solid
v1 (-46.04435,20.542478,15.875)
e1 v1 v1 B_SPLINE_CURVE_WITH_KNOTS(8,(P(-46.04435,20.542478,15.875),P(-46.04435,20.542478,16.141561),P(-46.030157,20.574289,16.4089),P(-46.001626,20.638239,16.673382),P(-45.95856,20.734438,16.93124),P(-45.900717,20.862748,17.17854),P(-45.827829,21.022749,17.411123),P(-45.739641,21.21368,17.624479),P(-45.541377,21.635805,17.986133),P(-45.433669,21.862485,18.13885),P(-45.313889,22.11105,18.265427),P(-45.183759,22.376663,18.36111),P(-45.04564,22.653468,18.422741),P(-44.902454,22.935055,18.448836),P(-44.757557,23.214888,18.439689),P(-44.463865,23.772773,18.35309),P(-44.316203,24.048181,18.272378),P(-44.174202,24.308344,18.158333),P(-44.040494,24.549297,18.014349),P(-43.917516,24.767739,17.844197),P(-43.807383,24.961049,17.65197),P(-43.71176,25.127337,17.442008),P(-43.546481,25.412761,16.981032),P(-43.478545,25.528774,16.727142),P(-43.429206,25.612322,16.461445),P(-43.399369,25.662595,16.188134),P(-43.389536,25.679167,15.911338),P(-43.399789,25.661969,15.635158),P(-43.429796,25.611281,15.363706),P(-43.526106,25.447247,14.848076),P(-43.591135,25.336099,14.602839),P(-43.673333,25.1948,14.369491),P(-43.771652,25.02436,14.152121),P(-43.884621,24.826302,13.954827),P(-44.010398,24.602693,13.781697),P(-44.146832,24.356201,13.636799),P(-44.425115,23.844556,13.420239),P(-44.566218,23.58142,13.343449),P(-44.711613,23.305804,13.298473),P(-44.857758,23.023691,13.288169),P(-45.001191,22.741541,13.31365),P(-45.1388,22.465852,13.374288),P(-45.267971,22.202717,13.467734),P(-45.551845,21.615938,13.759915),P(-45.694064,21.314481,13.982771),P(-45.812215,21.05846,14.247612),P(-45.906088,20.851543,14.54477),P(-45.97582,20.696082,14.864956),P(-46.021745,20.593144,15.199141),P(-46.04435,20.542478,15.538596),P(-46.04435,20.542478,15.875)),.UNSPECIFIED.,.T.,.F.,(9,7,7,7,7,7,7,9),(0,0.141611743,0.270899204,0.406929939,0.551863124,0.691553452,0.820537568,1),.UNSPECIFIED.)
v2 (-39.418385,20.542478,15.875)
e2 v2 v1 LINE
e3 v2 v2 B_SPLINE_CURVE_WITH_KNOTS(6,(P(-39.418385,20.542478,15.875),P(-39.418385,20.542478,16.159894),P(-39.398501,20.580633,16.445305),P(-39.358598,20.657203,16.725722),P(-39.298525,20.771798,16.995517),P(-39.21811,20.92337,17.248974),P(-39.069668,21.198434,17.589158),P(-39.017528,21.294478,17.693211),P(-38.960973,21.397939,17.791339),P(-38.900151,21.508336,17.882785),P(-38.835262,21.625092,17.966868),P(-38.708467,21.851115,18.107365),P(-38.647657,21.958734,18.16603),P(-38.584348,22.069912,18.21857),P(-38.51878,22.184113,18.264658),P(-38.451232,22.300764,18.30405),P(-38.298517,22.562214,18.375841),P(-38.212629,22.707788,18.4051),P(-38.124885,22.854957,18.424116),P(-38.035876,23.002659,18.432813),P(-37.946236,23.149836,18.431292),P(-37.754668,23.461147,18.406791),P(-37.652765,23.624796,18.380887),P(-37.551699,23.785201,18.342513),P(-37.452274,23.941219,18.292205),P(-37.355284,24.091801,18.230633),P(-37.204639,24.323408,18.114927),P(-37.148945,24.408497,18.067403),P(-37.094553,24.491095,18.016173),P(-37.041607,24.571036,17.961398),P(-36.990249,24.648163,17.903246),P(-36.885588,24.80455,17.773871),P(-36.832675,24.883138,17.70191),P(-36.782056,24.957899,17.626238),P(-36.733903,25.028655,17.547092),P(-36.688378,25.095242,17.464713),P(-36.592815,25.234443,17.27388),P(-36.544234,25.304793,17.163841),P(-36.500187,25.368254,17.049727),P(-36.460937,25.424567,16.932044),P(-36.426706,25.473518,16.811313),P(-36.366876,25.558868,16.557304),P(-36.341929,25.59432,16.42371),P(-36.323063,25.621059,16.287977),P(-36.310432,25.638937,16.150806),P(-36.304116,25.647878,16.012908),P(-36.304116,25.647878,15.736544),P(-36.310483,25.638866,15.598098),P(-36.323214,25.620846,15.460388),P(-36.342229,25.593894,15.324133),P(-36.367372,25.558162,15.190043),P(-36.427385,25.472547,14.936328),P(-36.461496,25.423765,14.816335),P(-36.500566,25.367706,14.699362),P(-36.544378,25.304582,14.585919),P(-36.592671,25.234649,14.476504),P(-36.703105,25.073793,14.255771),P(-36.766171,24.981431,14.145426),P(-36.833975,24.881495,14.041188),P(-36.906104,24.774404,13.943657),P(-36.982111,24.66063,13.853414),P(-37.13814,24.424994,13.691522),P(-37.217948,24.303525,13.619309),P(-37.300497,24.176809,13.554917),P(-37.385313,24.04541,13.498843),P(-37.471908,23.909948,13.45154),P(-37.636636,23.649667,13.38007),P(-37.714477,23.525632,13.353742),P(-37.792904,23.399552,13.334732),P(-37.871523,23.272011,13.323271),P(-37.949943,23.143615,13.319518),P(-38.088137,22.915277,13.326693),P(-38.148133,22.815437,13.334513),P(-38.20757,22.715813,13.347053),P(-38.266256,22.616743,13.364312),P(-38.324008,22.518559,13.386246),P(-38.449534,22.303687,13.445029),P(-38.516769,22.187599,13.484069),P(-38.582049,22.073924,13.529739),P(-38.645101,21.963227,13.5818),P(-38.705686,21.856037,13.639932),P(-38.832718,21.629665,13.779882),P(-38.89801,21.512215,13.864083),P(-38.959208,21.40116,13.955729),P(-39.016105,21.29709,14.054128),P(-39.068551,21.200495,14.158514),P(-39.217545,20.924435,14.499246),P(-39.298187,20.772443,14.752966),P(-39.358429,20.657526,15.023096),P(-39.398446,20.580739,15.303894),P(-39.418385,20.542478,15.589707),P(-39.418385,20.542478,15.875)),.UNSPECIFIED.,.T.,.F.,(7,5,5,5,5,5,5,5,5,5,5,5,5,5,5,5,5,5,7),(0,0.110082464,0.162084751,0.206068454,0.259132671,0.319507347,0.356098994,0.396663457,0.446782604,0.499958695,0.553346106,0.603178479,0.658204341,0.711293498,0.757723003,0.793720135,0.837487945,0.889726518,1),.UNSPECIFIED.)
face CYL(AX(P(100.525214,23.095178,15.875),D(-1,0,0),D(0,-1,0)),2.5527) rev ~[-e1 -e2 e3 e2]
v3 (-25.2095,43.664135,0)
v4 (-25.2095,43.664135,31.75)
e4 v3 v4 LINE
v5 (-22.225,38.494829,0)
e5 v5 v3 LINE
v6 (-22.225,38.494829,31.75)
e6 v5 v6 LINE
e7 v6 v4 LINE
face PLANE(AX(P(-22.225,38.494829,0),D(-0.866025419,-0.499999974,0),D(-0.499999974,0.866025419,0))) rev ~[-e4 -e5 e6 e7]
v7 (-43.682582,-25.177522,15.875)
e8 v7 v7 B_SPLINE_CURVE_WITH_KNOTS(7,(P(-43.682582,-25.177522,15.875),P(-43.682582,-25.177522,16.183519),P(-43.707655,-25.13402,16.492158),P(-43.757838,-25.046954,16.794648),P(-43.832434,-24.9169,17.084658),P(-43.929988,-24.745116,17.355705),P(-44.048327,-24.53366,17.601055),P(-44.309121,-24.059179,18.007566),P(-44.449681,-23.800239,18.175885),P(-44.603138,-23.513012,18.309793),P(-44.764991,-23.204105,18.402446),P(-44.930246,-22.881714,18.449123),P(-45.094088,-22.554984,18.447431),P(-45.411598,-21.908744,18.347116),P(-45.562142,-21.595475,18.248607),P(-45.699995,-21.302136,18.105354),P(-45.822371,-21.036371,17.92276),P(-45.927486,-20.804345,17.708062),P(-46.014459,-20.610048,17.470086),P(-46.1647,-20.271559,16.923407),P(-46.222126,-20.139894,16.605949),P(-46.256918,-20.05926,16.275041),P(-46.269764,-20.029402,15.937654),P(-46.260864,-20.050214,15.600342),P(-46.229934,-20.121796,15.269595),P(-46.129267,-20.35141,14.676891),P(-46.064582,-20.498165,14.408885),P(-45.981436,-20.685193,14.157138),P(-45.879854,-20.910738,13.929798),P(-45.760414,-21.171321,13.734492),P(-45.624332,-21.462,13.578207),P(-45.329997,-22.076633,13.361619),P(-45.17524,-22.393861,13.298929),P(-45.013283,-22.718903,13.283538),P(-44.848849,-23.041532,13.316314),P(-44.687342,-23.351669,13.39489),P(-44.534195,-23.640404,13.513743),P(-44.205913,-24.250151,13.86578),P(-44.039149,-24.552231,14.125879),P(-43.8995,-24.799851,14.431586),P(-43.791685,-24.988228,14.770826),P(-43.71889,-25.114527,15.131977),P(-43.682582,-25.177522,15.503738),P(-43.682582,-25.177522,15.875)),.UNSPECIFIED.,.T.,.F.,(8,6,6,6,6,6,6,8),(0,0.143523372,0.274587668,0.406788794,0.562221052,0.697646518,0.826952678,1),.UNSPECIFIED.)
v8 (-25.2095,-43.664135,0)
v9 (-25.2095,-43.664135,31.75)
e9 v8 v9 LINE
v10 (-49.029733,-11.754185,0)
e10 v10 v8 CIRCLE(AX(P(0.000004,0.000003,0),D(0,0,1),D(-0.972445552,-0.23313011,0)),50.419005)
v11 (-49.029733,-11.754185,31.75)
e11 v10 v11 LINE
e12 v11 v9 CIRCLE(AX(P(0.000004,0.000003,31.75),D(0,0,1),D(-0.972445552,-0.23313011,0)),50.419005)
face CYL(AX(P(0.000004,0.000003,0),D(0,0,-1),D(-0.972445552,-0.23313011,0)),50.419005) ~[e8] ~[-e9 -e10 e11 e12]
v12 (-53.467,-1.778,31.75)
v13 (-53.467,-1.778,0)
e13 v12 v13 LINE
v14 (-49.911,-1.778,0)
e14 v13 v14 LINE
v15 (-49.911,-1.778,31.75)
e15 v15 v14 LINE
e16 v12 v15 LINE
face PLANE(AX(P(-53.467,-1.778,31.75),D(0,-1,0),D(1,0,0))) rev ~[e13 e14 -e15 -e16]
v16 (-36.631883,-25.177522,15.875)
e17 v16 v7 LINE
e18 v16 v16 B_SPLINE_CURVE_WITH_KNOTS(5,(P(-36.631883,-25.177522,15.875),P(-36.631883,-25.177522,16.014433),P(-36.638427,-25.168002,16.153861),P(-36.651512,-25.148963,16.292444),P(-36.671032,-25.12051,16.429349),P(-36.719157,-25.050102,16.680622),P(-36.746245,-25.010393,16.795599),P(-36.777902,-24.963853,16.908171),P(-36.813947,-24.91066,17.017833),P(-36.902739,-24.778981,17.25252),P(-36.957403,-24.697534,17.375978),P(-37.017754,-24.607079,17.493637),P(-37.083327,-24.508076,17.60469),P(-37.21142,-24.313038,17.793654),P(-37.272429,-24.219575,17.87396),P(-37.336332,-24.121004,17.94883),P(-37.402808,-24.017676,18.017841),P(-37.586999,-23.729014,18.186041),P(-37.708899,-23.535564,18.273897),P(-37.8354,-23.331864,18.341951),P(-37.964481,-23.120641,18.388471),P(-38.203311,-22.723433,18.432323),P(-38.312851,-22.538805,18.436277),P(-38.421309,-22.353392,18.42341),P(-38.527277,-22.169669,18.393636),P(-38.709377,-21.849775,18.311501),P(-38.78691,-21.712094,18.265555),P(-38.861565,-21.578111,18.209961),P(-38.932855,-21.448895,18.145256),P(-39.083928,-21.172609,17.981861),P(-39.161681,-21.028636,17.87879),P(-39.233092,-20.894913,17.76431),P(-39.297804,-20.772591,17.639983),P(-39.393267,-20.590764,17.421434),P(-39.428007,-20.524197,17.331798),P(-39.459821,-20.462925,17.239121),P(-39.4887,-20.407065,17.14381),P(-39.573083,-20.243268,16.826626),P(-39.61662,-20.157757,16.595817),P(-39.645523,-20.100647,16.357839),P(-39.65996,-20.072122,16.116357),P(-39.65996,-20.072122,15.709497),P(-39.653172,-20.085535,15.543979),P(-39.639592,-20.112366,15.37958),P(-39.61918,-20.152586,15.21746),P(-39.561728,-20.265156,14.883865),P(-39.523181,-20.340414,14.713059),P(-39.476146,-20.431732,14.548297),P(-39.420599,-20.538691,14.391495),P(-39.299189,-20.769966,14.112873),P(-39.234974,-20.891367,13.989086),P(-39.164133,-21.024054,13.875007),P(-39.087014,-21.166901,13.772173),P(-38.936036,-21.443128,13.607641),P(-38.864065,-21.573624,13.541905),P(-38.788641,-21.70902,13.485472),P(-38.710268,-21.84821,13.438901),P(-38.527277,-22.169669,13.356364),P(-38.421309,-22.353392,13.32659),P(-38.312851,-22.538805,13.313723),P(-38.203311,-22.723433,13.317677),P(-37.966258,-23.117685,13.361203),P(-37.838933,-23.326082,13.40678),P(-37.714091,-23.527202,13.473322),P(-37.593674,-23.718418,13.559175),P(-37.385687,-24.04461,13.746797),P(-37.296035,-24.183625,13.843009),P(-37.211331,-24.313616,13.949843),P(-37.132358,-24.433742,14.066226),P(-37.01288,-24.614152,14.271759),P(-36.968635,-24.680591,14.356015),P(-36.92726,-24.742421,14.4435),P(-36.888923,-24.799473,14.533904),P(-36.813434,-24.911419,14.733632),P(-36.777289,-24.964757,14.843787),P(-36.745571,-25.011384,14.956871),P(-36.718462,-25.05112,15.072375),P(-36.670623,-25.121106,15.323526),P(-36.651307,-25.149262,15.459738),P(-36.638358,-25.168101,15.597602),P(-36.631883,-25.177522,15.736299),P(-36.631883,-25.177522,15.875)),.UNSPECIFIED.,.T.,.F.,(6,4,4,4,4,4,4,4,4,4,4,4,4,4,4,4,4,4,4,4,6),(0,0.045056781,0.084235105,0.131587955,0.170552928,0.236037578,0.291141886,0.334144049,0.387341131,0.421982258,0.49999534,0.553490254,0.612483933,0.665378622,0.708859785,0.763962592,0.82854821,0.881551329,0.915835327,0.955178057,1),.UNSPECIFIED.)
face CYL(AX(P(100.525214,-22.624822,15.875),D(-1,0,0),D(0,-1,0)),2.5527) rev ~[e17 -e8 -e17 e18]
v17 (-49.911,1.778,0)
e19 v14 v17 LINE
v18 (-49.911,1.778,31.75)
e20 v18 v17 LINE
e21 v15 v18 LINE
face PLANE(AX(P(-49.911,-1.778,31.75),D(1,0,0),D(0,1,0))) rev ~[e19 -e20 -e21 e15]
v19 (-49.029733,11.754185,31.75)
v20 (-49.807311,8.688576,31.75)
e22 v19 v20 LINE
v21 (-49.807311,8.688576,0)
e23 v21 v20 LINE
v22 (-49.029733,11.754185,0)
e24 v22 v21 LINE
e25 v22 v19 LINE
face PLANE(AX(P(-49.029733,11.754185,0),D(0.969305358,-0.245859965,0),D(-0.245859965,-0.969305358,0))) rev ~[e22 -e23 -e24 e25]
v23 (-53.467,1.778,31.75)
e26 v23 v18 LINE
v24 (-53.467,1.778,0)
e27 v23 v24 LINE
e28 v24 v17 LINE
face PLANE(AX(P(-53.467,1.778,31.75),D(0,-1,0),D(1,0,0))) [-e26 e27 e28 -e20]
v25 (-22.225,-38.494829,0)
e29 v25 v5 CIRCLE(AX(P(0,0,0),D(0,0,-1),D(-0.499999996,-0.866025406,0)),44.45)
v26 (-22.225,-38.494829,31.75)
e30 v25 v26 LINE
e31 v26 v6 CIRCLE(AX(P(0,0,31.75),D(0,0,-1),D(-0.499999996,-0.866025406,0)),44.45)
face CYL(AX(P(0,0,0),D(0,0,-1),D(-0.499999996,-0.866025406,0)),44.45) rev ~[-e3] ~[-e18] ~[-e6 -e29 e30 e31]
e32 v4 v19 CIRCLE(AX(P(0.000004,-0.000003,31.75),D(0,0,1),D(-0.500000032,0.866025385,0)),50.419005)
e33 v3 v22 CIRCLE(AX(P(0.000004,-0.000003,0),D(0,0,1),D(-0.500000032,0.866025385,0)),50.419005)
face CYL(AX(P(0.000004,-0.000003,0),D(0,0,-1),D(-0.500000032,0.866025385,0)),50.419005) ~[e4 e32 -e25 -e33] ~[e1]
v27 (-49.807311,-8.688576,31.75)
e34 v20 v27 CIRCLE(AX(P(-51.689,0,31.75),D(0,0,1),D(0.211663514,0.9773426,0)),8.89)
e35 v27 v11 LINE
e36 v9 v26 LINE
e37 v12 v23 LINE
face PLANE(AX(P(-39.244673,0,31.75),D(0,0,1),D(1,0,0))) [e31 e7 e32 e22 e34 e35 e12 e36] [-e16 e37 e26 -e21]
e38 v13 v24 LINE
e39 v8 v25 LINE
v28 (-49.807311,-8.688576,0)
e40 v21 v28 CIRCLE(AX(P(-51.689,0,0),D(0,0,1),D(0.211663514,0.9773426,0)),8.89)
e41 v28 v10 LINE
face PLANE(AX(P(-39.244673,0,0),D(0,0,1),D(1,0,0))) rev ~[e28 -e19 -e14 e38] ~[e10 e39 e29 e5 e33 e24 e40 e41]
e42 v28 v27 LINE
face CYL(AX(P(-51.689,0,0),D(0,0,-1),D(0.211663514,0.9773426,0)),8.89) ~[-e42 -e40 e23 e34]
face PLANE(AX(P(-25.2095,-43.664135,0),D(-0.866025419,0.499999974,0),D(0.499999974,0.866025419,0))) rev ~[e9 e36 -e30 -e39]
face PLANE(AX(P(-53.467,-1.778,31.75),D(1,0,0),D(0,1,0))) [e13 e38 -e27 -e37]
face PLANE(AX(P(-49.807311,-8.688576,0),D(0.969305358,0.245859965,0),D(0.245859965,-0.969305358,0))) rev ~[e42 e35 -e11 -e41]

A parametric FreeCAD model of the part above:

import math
import FreeCAD as App
import Part
import Sketcher

V = App.Vector
Q = App.Units.Quantity

doc = App.newDocument("Part")
body = doc.addObject("PartDesign::Body", "Body")

# Sketch on XY plane
sketch1 = body.newObject("Sketcher::SketchObject", "Sketch")
sketch1.AttachmentSupport = (doc.getObject("XY_Plane"), [""])
sketch1.MapMode = "FlatFace"
sketch1.addGeometry(Part.ArcOfCircle(Part.Circle(V(0, 0, 0), V(0, 0, 1), 44.4), math.radians(120), math.radians(240)), False)
sketch1.addGeometry(Part.LineSegment(V(-22.2, 38.5, 0), V(-25.2, 43.7, 0)), False)
sketch1.addGeometry(Part.ArcOfCircle(Part.Circle(V(0, 0, 0), V(0, 0, 1), 50.4), math.radians(120), math.radians(167)), False)
sketch1.addGeometry(Part.LineSegment(V(-49, 11.8, 0), V(-49.8, 8.7, 0)), False)
sketch1.addGeometry(Part.ArcOfCircle(Part.Circle(V(-51.7, 0, 0), V(0, 0, 1), 8.9), math.radians(78), math.radians(282)), False)
sketch1.addGeometry(Part.LineSegment(V(-49.8, -8.7, 0), V(-49, -11.8, 0)), False)
sketch1.addGeometry(Part.ArcOfCircle(Part.Circle(V(0, 0, 0), V(0, 0, 1), 50.4), math.radians(-167), math.radians(-120)), False)
sketch1.addGeometry(Part.LineSegment(V(-25.2, -43.7, 0), V(-22.2, -38.5, 0)), False)
sketch1.addGeometry(Part.Circle(V(-51.7, 0, 0), V(0, 0, 1), 1.3), False)
sketch1.addConstraint(Sketcher.Constraint("Coincident", 0, 1, 1, 1))
sketch1.addConstraint(Sketcher.Constraint("Coincident", 1, 2, 2, 1))
sketch1.addConstraint(Sketcher.Constraint("Coincident", 2, 2, 3, 1))
sketch1.addConstraint(Sketcher.Constraint("Coincident", 3, 2, 4, 1))
sketch1.addConstraint(Sketcher.Constraint("Coincident", 4, 2, 5, 1))
sketch1.addConstraint(Sketcher.Constraint("Coincident", 5, 2, 6, 1))
sketch1.addConstraint(Sketcher.Constraint("Coincident", 6, 2, 7, 1))
sketch1.addConstraint(Sketcher.Constraint("Coincident", 7, 2, 0, 2))
sketch1.addConstraint(Sketcher.Constraint("Coincident", 0, 3, -1, 1))
sketch1.addConstraint(Sketcher.Constraint("Coincident", 2, 3, -1, 1))
sketch1.addConstraint(Sketcher.Constraint("Coincident", 6, 3, -1, 1))
sketch1.addConstraint(Sketcher.Constraint("Coincident", 8, 3, 4, 3))
sketch1.addConstraint(Sketcher.Constraint("Equal", 2, 6))
sketch1.addConstraint(Sketcher.Constraint("Symmetric", 3, 2, 4, 2, -1))
sketch1.addConstraint(Sketcher.Constraint("Vertical", 2, 2, 5, 2))
sketch1.addConstraint(Sketcher.Constraint("Vertical", 1, 2, 6, 2))
sketch1.addConstraint(Sketcher.Constraint("Vertical", 0, 1, 7, 2))
sketch1.addConstraint(Sketcher.Constraint("Diameter", 8, Q("0.1 in")))
sketch1.addConstraint(Sketcher.Constraint("Radius", 0, Q("1.75 in")))
sketch1.addConstraint(Sketcher.Constraint("Radius", 4, Q("0.35 in")))
sketch1.addConstraint(Sketcher.Constraint("Angle", 1, Q("119.999998 deg")))
sketch1.addConstraint(Sketcher.Constraint("Radius", 2, Q("1.9850002 in")))
sketch1.addConstraint(Sketcher.Constraint("DistanceX", 4, 3, 0, 1, Q("1.16 in")))
sketch1.addConstraint(Sketcher.Constraint("DistanceX", 4, 3, -1, 1, Q("2.035 in")))
sketch1.addConstraint(Sketcher.Constraint("DistanceX", 3, 2, -1, 1, Q("49.807311 mm")))
sketch1.addConstraint(Sketcher.Constraint("DistanceY", 2, 2, 1, 2, Q("31.90995 mm")))
pad1 = body.newObject("PartDesign::Pad", "Pad")
pad1.Profile = sketch1
pad1.Length = Q("1.25 in")

# Sketch on XY plane
sketch2 = body.newObject("Sketcher::SketchObject", "Sketch001")
sketch2.AttachmentSupport = (doc.getObject("XY_Plane"), [""])
sketch2.MapMode = "FlatFace"
sketch2.AttachmentOffset = App.Placement(V(0, 0, 1.25 * 25.4), App.Rotation())
sketch2.addGeometry(Part.LineSegment(V(-53.5, 1.8, 0), V(-53.5, -1.8, 0)), False)
sketch2.addGeometry(Part.LineSegment(V(-53.5, -1.8, 0), V(-49.9, -1.8, 0)), False)
sketch2.addGeometry(Part.LineSegment(V(-49.9, -1.8, 0), V(-49.9, 1.8, 0)), False)
sketch2.addGeometry(Part.LineSegment(V(-49.9, 1.8, 0), V(-53.5, 1.8, 0)), False)
sketch2.addGeometry(Part.Circle(V(-51.7, 0, 0), V(0, 0, 1), 1.3), False)
sketch2.addConstraint(Sketcher.Constraint("Coincident", 0, 2, 1, 1))
sketch2.addConstraint(Sketcher.Constraint("Coincident", 1, 2, 2, 1))
sketch2.addConstraint(Sketcher.Constraint("Coincident", 2, 2, 3, 1))
sketch2.addConstraint(Sketcher.Constraint("Coincident", 3, 2, 0, 1))
sketch2.addConstraint(Sketcher.Constraint("Vertical", 0))
sketch2.addConstraint(Sketcher.Constraint("Horizontal", 1))
sketch2.addConstraint(Sketcher.Constraint("Vertical", 2))
sketch2.addConstraint(Sketcher.Constraint("Horizontal", 3))
sketch2.addConstraint(Sketcher.Constraint("PointOnObject", 4, 3, -1))
sketch2.addConstraint(Sketcher.Constraint("Equal", 3, 0))
sketch2.addConstraint(Sketcher.Constraint("Diameter", 4, Q("0.1 in")))
sketch2.addConstraint(Sketcher.Constraint("DistanceX", 1, 1, 1, 2, Q("0.14 in")))
sketch2.addConstraint(Sketcher.Constraint("DistanceY", 0, 2, -1, 1, Q("0.07 in")))
sketch2.addConstraint(Sketcher.Constraint("DistanceX", 0, 2, 4, 3, Q("0.07 in")))
sketch2.addConstraint(Sketcher.Constraint("DistanceX", 4, 3, -1, 1, Q("2.035 in")))
pocket1 = body.newObject("PartDesign::Pocket", "Pocket")
pocket1.Profile = sketch2
pocket1.Type = "ThroughAll"

# Sketch on YZ plane
sketch3 = body.newObject("Sketcher::SketchObject", "Sketch002")
sketch3.AttachmentSupport = (doc.getObject("YZ_Plane"), [""])
sketch3.MapMode = "FlatFace"
sketch3.addGeometry(Part.Circle(V(-22.6, 15.9, 0), V(0, 0, 1), 2.6), False)
sketch3.addGeometry(Part.Circle(V(23.1, 15.9, 0), V(0, 0, 1), 2.6), False)
sketch3.addConstraint(Sketcher.Constraint("Equal", 0, 1))
sketch3.addConstraint(Sketcher.Constraint("Horizontal", 0, 3, 1, 3))
sketch3.addConstraint(Sketcher.Constraint("Diameter", 0, Q("0.201 in")))
sketch3.addConstraint(Sketcher.Constraint("DistanceX", 0, 3, 1, 3, Q("1.8 in")))
sketch3.addConstraint(Sketcher.Constraint("DistanceY", -1, 1, 0, 3, Q("0.625 in")))
sketch3.addConstraint(Sketcher.Constraint("DistanceX", -1, 1, 1, 3, Q("23.095178 mm")))
doc.recompute()
hole = body.newObject("PartDesign::Hole", "Hole")
hole.Profile = sketch3
hole.ThreadType = "None"
hole.Diameter = Q("0.201 in")
hole.DepthType = "ThroughAll"

doc.recompute()
